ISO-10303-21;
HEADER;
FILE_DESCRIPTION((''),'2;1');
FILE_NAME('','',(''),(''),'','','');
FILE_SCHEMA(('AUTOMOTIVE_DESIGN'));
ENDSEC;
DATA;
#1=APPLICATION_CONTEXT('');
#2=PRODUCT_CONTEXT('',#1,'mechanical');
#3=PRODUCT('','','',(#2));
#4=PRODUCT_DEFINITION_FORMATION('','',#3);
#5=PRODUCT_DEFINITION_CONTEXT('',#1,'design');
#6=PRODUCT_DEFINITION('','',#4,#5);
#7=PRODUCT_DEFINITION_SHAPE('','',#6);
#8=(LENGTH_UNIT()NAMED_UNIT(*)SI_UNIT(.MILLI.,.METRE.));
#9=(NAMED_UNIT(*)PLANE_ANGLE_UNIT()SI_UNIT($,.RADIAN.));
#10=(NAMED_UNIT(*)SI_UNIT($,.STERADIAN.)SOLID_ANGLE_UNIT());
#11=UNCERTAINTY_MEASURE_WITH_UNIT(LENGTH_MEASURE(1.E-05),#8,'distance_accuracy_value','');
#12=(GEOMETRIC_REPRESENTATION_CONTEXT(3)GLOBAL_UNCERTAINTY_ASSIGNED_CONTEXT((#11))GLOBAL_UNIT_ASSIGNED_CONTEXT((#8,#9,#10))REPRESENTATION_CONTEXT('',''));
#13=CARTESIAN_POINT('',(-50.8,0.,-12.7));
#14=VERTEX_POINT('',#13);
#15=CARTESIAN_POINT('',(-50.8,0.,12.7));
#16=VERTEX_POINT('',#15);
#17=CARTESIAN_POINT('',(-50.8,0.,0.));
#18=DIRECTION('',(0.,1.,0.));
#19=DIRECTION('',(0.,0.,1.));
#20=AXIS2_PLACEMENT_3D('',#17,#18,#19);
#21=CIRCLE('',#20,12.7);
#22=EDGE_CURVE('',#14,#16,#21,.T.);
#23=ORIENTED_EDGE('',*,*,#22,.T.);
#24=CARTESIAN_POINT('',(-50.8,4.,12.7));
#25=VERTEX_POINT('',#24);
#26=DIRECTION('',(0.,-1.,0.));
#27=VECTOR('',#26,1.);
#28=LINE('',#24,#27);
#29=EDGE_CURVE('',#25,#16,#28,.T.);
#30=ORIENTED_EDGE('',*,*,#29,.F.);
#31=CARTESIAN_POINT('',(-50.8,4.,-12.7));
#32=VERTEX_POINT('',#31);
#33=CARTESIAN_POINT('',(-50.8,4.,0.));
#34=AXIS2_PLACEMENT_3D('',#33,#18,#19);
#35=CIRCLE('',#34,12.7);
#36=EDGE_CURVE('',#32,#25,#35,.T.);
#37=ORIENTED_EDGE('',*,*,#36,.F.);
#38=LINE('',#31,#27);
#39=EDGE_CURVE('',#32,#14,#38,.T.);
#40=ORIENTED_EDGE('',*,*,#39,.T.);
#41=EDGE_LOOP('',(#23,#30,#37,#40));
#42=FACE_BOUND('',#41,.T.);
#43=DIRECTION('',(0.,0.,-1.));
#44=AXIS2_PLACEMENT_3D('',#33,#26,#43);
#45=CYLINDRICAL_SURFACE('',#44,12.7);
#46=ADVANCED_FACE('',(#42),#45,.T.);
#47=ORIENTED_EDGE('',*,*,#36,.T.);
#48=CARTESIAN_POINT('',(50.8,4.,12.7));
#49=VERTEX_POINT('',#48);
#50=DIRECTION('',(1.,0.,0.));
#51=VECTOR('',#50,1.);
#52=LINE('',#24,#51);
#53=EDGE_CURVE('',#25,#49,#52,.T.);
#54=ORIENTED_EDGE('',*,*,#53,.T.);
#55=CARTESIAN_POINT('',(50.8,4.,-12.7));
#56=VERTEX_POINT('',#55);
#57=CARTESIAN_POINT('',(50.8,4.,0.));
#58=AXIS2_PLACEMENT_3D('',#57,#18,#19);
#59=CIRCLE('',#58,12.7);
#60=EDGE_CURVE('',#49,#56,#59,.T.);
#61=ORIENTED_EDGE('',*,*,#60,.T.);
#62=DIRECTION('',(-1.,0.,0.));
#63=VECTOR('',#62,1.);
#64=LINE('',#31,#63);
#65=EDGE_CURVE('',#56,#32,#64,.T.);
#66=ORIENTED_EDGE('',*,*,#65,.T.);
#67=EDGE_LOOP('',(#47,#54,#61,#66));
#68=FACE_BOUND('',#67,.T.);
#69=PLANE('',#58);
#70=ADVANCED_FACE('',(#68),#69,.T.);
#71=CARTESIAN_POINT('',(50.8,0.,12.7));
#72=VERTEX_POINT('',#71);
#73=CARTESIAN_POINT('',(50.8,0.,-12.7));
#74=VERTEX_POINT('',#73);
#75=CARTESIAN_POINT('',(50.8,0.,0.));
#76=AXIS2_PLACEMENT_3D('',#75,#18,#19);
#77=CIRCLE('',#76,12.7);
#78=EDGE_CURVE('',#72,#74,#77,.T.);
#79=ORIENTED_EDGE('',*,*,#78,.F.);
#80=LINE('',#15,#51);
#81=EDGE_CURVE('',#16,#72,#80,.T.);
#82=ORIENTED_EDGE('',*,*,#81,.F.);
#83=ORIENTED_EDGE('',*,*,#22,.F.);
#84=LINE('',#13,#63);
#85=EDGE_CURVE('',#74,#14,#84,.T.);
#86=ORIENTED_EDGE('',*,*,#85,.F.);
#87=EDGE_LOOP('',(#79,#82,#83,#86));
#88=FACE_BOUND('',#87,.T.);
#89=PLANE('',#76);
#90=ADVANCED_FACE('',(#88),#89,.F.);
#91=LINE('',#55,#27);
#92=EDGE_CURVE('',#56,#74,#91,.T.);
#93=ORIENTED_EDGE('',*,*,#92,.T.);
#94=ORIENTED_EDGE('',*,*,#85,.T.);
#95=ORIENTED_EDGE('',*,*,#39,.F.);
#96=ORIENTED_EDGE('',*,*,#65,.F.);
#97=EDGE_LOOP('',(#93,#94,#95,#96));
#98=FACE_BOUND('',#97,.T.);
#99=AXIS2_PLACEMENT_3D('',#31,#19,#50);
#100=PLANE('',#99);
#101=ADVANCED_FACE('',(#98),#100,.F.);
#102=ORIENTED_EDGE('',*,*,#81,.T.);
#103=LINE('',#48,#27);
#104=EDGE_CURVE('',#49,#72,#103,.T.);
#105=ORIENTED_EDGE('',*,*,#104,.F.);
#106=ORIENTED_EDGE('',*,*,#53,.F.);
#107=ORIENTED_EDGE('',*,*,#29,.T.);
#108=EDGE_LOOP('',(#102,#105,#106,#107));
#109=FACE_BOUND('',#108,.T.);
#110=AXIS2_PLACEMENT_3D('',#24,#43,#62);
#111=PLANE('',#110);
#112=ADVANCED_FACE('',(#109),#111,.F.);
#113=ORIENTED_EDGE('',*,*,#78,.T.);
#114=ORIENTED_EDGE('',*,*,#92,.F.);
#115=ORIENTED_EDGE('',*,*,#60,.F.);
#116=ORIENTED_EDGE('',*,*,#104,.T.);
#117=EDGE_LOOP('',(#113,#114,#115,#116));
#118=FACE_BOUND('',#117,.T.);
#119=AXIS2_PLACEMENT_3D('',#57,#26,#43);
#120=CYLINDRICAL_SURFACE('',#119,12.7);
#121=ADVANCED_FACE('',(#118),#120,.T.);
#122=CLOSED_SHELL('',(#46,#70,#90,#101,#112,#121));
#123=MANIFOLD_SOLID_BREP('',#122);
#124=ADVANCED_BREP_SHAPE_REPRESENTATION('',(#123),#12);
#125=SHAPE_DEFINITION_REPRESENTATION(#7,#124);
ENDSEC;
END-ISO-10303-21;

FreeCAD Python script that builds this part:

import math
import FreeCAD as App
import Part
import Sketcher
from FreeCAD import Vector
Q = App.Units.Quantity

doc = App.newDocument("Part")
body = doc.addObject("PartDesign::Body", "Body")

# Sketch on XZ plane
sketch1 = body.newObject("Sketcher::SketchObject", "Sketch")
sketch1.AttachmentSupport = (doc.getObject("XZ_Plane"), [""])
sketch1.MapMode = "FlatFace"
sketch1.addGeometry(Part.LineSegment(Vector(51, -13, 0), Vector(-51, -13, 0)), False)
sketch1.addGeometry(Part.ArcOfCircle(Part.Circle(Vector(-51, 0, 0), Vector(0, 0, 1), 13), math.radians(90), math.radians(270)), False)
sketch1.addGeometry(Part.LineSegment(Vector(-51, 13, 0), Vector(51, 13, 0)), False)
sketch1.addGeometry(Part.ArcOfCircle(Part.Circle(Vector(51, 0, 0), Vector(0, 0, 1), 13), math.radians(-90), math.radians(90)), False)
sketch1.addConstraint(Sketcher.Constraint("Tangent", 0, 2, 1, 2))
sketch1.addConstraint(Sketcher.Constraint("Tangent", 1, 1, 2, 1))
sketch1.addConstraint(Sketcher.Constraint("Tangent", 2, 2, 3, 2))
sketch1.addConstraint(Sketcher.Constraint("Tangent", 3, 1, 0, 1))
sketch1.addConstraint(Sketcher.Constraint("Horizontal", 0))
sketch1.addConstraint(Sketcher.Constraint("Horizontal", 2))
sketch1.addConstraint(Sketcher.Constraint("Symmetric", 1, 3, 3, 3, -1, 1))
sketch1.addConstraint(Sketcher.Constraint("Radius", 1, Q("0.5 in")))
sketch1.addConstraint(Sketcher.Constraint("DistanceX", 0, 2, 0, 1, Q("4 in")))
pad1 = body.newObject("PartDesign::Pad", "Pad")
pad1.Profile = sketch1
pad1.Length = 4
pad1.Reversed = True

doc.recompute()
